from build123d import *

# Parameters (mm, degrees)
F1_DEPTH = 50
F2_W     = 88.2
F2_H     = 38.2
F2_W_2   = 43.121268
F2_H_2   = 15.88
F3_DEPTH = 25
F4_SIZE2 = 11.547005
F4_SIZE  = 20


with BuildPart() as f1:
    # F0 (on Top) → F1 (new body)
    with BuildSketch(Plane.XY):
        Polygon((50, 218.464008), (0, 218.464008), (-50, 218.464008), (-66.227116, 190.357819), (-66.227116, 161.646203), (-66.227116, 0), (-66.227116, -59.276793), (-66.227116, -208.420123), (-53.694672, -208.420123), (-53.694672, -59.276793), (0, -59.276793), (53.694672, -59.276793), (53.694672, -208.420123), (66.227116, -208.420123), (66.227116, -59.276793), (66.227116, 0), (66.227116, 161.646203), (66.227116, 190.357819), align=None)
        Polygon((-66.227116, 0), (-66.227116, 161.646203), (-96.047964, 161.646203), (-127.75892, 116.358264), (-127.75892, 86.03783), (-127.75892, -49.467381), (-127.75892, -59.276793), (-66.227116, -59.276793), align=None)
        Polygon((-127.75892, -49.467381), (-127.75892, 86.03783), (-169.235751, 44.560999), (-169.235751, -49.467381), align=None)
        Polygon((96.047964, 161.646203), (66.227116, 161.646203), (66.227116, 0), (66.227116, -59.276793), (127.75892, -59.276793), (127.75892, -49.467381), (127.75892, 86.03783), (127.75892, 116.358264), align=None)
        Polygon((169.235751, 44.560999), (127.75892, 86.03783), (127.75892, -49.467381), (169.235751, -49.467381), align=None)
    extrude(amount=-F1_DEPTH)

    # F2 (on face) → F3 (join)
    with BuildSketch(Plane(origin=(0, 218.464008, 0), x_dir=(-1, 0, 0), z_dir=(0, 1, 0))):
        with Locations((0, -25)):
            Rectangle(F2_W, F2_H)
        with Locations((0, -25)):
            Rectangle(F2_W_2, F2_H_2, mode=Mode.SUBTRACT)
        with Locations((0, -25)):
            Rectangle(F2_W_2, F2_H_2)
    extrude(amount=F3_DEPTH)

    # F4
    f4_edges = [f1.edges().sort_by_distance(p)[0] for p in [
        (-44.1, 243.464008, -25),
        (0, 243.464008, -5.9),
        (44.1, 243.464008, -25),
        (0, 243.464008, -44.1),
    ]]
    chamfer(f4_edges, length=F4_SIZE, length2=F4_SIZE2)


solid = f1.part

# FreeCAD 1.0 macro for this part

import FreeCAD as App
import Part
import Sketcher
from FreeCAD import Vector
Q = App.Units.Quantity


def edges_at(feature, points):
    """Names of the edges that pass closest to the given points."""
    edges = feature.Shape.Edges
    near = lambda p: min(range(len(edges)), key=lambda i: edges[i].distToShape(Part.Vertex(*p))[0])
    return sorted({f"Edge{near(p) + 1}" for p in points})

doc = App.newDocument("Part")
body = doc.addObject("PartDesign::Body", "Body")

# Sketch on XY plane
sketch1 = body.newObject("Sketcher::SketchObject", "Sketch")
sketch1.AttachmentSupport = (doc.getObject("XY_Plane"), [""])
sketch1.MapMode = "FlatFace"
sketch1.addGeometry([
    Part.LineSegment(Vector(50, 218.464008, 0), Vector(-50, 218.464008, 0)),  # 0
    Part.LineSegment(Vector(-50, 218.464008, 0), Vector(-66.227116, 190.357819, 0)),  # 1
    Part.LineSegment(Vector(-66.227116, 190.357819, 0), Vector(-66.227116, 161.646203, 0)),  # 2
    Part.LineSegment(Vector(-66.227116, 161.646203, 0), Vector(-96.047964, 161.646203, 0)),  # 3
    Part.LineSegment(Vector(-96.047964, 161.646203, 0), Vector(-127.75892, 116.358264, 0)),  # 4
    Part.LineSegment(Vector(-127.75892, 116.358264, 0), Vector(-127.75892, 86.03783, 0)),  # 5
    Part.LineSegment(Vector(-127.75892, 86.03783, 0), Vector(-169.235751, 44.560999, 0)),  # 6
    Part.LineSegment(Vector(-169.235751, 44.560999, 0), Vector(-169.235751, -49.467381, 0)),  # 7
    Part.LineSegment(Vector(-169.235751, -49.467381, 0), Vector(-127.75892, -49.467381, 0)),  # 8
    Part.LineSegment(Vector(-127.75892, -49.467381, 0), Vector(-127.75892, -59.276793, 0)),  # 9
    Part.LineSegment(Vector(-127.75892, -59.276793, 0), Vector(-66.227116, -59.276793, 0)),  # 10
    Part.LineSegment(Vector(-66.227116, -59.276793, 0), Vector(-66.227116, -208.420123, 0)),  # 11
    Part.LineSegment(Vector(-66.227116, -208.420123, 0), Vector(-53.694672, -208.420123, 0)),  # 12
    Part.LineSegment(Vector(-53.694672, -208.420123, 0), Vector(-53.694672, -59.276793, 0)),  # 13
    Part.LineSegment(Vector(-53.694672, -59.276793, 0), Vector(53.694672, -59.276793, 0)),  # 14
    Part.LineSegment(Vector(53.694672, -59.276793, 0), Vector(53.694672, -208.420123, 0)),  # 15
    Part.LineSegment(Vector(53.694672, -208.420123, 0), Vector(66.227116, -208.420123, 0)),  # 16
    Part.LineSegment(Vector(66.227116, -208.420123, 0), Vector(66.227116, -59.276793, 0)),  # 17
    Part.LineSegment(Vector(66.227116, -59.276793, 0), Vector(127.75892, -59.276793, 0)),  # 18
    Part.LineSegment(Vector(127.75892, -59.276793, 0), Vector(127.75892, -49.467381, 0)),  # 19
    Part.LineSegment(Vector(127.75892, -49.467381, 0), Vector(169.235751, -49.467381, 0)),  # 20
    Part.LineSegment(Vector(169.235751, -49.467381, 0), Vector(169.235751, 44.560999, 0)),  # 21
    Part.LineSegment(Vector(169.235751, 44.560999, 0), Vector(127.75892, 86.03783, 0)),  # 22
    Part.LineSegment(Vector(127.75892, 86.03783, 0), Vector(127.75892, 116.358264, 0)),  # 23
    Part.LineSegment(Vector(127.75892, 116.358264, 0), Vector(96.047964, 161.646203, 0)),  # 24
    Part.LineSegment(Vector(96.047964, 161.646203, 0), Vector(66.227116, 161.646203, 0)),  # 25
    Part.LineSegment(Vector(66.227116, 161.646203, 0), Vector(66.227116, 190.357819, 0)),  # 26
    Part.LineSegment(Vector(66.227116, 190.357819, 0), Vector(50, 218.464008, 0)),  # 27
], False)
sketch1.addConstraint([
    Sketcher.Constraint("Coincident", 0, 2, 1, 1),
    Sketcher.Constraint("Coincident", 1, 2, 2, 1),
    Sketcher.Constraint("Coincident", 2, 2, 3, 1),
    Sketcher.Constraint("Coincident", 3, 2, 4, 1),
    Sketcher.Constraint("Coincident", 4, 2, 5, 1),
    Sketcher.Constraint("Coincident", 5, 2, 6, 1),
    Sketcher.Constraint("Coincident", 6, 2, 7, 1),
    Sketcher.Constraint("Coincident", 7, 2, 8, 1),
    Sketcher.Constraint("Coincident", 8, 2, 9, 1),
    Sketcher.Constraint("Coincident", 9, 2, 10, 1),
    Sketcher.Constraint("Coincident", 10, 2, 11, 1),
    Sketcher.Constraint("Coincident", 11, 2, 12, 1),
    Sketcher.Constraint("Coincident", 12, 2, 13, 1),
    Sketcher.Constraint("Coincident", 13, 2, 14, 1),
    Sketcher.Constraint("Coincident", 14, 2, 15, 1),
    Sketcher.Constraint("Coincident", 15, 2, 16, 1),
    Sketcher.Constraint("Coincident", 16, 2, 17, 1),
    Sketcher.Constraint("Coincident", 17, 2, 18, 1),
    Sketcher.Constraint("Coincident", 18, 2, 19, 1),
    Sketcher.Constraint("Coincident", 19, 2, 20, 1),
    Sketcher.Constraint("Coincident", 20, 2, 21, 1),
    Sketcher.Constraint("Coincident", 21, 2, 22, 1),
    Sketcher.Constraint("Coincident", 22, 2, 23, 1),
    Sketcher.Constraint("Coincident", 23, 2, 24, 1),
    Sketcher.Constraint("Coincident", 24, 2, 25, 1),
    Sketcher.Constraint("Coincident", 25, 2, 26, 1),
    Sketcher.Constraint("Coincident", 26, 2, 27, 1),
    Sketcher.Constraint("Coincident", 27, 2, 0, 1),
    Sketcher.Constraint("Horizontal", 0),
    Sketcher.Constraint("Vertical", 2),
    Sketcher.Constraint("Horizontal", 3),
    Sketcher.Constraint("Vertical", 5),
    Sketcher.Constraint("Vertical", 7),
    Sketcher.Constraint("Horizontal", 8),
    Sketcher.Constraint("Vertical", 9),
    Sketcher.Constraint("Horizontal", 10),
    Sketcher.Constraint("Vertical", 11),
    Sketcher.Constraint("Horizontal", 12),
    Sketcher.Constraint("Vertical", 13),
    Sketcher.Constraint("Horizontal", 14),
    Sketcher.Constraint("Vertical", 15),
    Sketcher.Constraint("Horizontal", 16),
    Sketcher.Constraint("Vertical", 17),
    Sketcher.Constraint("Horizontal", 18),
    Sketcher.Constraint("Vertical", 19),
    Sketcher.Constraint("Horizontal", 20),
    Sketcher.Constraint("Vertical", 21),
    Sketcher.Constraint("Vertical", 23),
    Sketcher.Constraint("Horizontal", 25),
    Sketcher.Constraint("Vertical", 26),
    Sketcher.Constraint("Symmetric", 12, 2, 15, 2, -2),
    Sketcher.Constraint("Symmetric", 10, 2, 17, 2, -2),
    Sketcher.Constraint("Symmetric", 8, 2, 19, 2, -2),
    Sketcher.Constraint("Symmetric", 6, 2, 21, 2, -2),
    Sketcher.Constraint("Symmetric", 5, 2, 22, 2, -2),
    Sketcher.Constraint("Symmetric", 3, 2, 24, 2, -2),
    Sketcher.Constraint("Symmetric", 1, 2, 26, 2, -2),
    Sketcher.Constraint("Perpendicular", 6, 22),
    Sketcher.Constraint("Horizontal", 10, 2, 13, 2),
    Sketcher.Constraint("Horizontal", 4, 2, 23, 2),
    Sketcher.Constraint("Vertical", 5, 2, 8, 2),
    Sketcher.Constraint("Vertical", 2, 2, 10, 2),
    Sketcher.Constraint("Equal", 1, 27),
    Sketcher.Constraint("DistanceX", 0, 2, 0, 1, Q("100 mm")),
    Sketcher.Constraint("Angle", 1, Q("-120 deg")),
    Sketcher.Constraint("Angle", 4, Q("-125 deg")),
    Sketcher.Constraint("DistanceY", -1, 1, 6, 2, Q("44.560999 mm")),
    Sketcher.Constraint("DistanceX", 8, 1, 8, 2, Q("41.476831 mm")),
    Sketcher.Constraint("DistanceY", 7, 2, 7, 1, Q("94.02838 mm")),
    Sketcher.Constraint("DistanceY", 9, 2, 9, 1, Q("9.809412 mm")),
    Sketcher.Constraint("DistanceY", 11, 2, 11, 1, Q("149.14333 mm")),
    Sketcher.Constraint("Distance", 1, Q("32.454232 mm")),
    Sketcher.Constraint("DistanceX", 3, 2, 3, 1, Q("29.820848 mm")),
    Sketcher.Constraint("DistanceX", 10, 1, 10, 2, Q("61.531804 mm")),
    Sketcher.Constraint("DistanceX", 12, 1, 12, 2, Q("12.532444 mm")),
    Sketcher.Constraint("DistanceY", 2, 2, 2, 1, Q("28.711616 mm")),
    Sketcher.Constraint("DistanceY", 5, 2, 5, 1, Q("30.320434 mm")),
])
pad1 = body.newObject("PartDesign::Pad", "Pad")
pad1.Profile = sketch1
pad1.Length = 50
pad1.Reversed = True

# Sketch on XZ plane
sketch2 = body.newObject("Sketcher::SketchObject", "Sketch001")
sketch2.AttachmentSupport = (doc.getObject("XZ_Plane"), [""])
sketch2.MapMode = "FlatFace"
sketch2.AttachmentOffset = App.Placement(Vector(0, 0, -218.464008), App.Rotation())
sketch2.addGeometry([
    Part.LineSegment(Vector(44.1, -5.9, 0), Vector(44.1, -44.1, 0)),
    Part.LineSegment(Vector(44.1, -44.1, 0), Vector(-44.1, -44.1, 0)),
    Part.LineSegment(Vector(-44.1, -44.1, 0), Vector(-44.1, -5.9, 0)),
    Part.LineSegment(Vector(-44.1, -5.9, 0), Vector(44.1, -5.9, 0)),
], False)
sketch2.addConstraint([
    Sketcher.Constraint("Coincident", 0, 2, 1, 1),
    Sketcher.Constraint("Coincident", 1, 2, 2, 1),
    Sketcher.Constraint("Coincident", 2, 2, 3, 1),
    Sketcher.Constraint("Coincident", 3, 2, 0, 1),
    Sketcher.Constraint("Vertical", 0),
    Sketcher.Constraint("Horizontal", 1),
    Sketcher.Constraint("Vertical", 2),
    Sketcher.Constraint("Horizontal", 3),
    Sketcher.Constraint("DistanceX", 1, 2, 1, 1, Q("88.2 mm")),
    Sketcher.Constraint("DistanceY", 0, 2, 0, 1, Q("38.2 mm")),
    Sketcher.Constraint("DistanceX", -1, 1, 0, 2, Q("44.1 mm")),
    Sketcher.Constraint("DistanceY", 0, 2, -1, 1, Q("44.1 mm")),
])
pad2 = body.newObject("PartDesign::Pad", "Pad001")
pad2.Profile = sketch2
pad2.Length = 25
pad2.Reversed = True
doc.recompute()

chamfer = body.newObject("PartDesign::Chamfer", "Chamfer")
chamfer.Base = (pad2, edges_at(pad2, [
    (-44.1, 243.464, -25),
    (0, 243.464, -5.9),
    (44.1, 243.464, -25),
    (0, 243.464, -44.1),
]))
chamfer.ChamferType = "Two distances"
chamfer.Size = 20
chamfer.Size2 = 11.547005

doc.recompute()
